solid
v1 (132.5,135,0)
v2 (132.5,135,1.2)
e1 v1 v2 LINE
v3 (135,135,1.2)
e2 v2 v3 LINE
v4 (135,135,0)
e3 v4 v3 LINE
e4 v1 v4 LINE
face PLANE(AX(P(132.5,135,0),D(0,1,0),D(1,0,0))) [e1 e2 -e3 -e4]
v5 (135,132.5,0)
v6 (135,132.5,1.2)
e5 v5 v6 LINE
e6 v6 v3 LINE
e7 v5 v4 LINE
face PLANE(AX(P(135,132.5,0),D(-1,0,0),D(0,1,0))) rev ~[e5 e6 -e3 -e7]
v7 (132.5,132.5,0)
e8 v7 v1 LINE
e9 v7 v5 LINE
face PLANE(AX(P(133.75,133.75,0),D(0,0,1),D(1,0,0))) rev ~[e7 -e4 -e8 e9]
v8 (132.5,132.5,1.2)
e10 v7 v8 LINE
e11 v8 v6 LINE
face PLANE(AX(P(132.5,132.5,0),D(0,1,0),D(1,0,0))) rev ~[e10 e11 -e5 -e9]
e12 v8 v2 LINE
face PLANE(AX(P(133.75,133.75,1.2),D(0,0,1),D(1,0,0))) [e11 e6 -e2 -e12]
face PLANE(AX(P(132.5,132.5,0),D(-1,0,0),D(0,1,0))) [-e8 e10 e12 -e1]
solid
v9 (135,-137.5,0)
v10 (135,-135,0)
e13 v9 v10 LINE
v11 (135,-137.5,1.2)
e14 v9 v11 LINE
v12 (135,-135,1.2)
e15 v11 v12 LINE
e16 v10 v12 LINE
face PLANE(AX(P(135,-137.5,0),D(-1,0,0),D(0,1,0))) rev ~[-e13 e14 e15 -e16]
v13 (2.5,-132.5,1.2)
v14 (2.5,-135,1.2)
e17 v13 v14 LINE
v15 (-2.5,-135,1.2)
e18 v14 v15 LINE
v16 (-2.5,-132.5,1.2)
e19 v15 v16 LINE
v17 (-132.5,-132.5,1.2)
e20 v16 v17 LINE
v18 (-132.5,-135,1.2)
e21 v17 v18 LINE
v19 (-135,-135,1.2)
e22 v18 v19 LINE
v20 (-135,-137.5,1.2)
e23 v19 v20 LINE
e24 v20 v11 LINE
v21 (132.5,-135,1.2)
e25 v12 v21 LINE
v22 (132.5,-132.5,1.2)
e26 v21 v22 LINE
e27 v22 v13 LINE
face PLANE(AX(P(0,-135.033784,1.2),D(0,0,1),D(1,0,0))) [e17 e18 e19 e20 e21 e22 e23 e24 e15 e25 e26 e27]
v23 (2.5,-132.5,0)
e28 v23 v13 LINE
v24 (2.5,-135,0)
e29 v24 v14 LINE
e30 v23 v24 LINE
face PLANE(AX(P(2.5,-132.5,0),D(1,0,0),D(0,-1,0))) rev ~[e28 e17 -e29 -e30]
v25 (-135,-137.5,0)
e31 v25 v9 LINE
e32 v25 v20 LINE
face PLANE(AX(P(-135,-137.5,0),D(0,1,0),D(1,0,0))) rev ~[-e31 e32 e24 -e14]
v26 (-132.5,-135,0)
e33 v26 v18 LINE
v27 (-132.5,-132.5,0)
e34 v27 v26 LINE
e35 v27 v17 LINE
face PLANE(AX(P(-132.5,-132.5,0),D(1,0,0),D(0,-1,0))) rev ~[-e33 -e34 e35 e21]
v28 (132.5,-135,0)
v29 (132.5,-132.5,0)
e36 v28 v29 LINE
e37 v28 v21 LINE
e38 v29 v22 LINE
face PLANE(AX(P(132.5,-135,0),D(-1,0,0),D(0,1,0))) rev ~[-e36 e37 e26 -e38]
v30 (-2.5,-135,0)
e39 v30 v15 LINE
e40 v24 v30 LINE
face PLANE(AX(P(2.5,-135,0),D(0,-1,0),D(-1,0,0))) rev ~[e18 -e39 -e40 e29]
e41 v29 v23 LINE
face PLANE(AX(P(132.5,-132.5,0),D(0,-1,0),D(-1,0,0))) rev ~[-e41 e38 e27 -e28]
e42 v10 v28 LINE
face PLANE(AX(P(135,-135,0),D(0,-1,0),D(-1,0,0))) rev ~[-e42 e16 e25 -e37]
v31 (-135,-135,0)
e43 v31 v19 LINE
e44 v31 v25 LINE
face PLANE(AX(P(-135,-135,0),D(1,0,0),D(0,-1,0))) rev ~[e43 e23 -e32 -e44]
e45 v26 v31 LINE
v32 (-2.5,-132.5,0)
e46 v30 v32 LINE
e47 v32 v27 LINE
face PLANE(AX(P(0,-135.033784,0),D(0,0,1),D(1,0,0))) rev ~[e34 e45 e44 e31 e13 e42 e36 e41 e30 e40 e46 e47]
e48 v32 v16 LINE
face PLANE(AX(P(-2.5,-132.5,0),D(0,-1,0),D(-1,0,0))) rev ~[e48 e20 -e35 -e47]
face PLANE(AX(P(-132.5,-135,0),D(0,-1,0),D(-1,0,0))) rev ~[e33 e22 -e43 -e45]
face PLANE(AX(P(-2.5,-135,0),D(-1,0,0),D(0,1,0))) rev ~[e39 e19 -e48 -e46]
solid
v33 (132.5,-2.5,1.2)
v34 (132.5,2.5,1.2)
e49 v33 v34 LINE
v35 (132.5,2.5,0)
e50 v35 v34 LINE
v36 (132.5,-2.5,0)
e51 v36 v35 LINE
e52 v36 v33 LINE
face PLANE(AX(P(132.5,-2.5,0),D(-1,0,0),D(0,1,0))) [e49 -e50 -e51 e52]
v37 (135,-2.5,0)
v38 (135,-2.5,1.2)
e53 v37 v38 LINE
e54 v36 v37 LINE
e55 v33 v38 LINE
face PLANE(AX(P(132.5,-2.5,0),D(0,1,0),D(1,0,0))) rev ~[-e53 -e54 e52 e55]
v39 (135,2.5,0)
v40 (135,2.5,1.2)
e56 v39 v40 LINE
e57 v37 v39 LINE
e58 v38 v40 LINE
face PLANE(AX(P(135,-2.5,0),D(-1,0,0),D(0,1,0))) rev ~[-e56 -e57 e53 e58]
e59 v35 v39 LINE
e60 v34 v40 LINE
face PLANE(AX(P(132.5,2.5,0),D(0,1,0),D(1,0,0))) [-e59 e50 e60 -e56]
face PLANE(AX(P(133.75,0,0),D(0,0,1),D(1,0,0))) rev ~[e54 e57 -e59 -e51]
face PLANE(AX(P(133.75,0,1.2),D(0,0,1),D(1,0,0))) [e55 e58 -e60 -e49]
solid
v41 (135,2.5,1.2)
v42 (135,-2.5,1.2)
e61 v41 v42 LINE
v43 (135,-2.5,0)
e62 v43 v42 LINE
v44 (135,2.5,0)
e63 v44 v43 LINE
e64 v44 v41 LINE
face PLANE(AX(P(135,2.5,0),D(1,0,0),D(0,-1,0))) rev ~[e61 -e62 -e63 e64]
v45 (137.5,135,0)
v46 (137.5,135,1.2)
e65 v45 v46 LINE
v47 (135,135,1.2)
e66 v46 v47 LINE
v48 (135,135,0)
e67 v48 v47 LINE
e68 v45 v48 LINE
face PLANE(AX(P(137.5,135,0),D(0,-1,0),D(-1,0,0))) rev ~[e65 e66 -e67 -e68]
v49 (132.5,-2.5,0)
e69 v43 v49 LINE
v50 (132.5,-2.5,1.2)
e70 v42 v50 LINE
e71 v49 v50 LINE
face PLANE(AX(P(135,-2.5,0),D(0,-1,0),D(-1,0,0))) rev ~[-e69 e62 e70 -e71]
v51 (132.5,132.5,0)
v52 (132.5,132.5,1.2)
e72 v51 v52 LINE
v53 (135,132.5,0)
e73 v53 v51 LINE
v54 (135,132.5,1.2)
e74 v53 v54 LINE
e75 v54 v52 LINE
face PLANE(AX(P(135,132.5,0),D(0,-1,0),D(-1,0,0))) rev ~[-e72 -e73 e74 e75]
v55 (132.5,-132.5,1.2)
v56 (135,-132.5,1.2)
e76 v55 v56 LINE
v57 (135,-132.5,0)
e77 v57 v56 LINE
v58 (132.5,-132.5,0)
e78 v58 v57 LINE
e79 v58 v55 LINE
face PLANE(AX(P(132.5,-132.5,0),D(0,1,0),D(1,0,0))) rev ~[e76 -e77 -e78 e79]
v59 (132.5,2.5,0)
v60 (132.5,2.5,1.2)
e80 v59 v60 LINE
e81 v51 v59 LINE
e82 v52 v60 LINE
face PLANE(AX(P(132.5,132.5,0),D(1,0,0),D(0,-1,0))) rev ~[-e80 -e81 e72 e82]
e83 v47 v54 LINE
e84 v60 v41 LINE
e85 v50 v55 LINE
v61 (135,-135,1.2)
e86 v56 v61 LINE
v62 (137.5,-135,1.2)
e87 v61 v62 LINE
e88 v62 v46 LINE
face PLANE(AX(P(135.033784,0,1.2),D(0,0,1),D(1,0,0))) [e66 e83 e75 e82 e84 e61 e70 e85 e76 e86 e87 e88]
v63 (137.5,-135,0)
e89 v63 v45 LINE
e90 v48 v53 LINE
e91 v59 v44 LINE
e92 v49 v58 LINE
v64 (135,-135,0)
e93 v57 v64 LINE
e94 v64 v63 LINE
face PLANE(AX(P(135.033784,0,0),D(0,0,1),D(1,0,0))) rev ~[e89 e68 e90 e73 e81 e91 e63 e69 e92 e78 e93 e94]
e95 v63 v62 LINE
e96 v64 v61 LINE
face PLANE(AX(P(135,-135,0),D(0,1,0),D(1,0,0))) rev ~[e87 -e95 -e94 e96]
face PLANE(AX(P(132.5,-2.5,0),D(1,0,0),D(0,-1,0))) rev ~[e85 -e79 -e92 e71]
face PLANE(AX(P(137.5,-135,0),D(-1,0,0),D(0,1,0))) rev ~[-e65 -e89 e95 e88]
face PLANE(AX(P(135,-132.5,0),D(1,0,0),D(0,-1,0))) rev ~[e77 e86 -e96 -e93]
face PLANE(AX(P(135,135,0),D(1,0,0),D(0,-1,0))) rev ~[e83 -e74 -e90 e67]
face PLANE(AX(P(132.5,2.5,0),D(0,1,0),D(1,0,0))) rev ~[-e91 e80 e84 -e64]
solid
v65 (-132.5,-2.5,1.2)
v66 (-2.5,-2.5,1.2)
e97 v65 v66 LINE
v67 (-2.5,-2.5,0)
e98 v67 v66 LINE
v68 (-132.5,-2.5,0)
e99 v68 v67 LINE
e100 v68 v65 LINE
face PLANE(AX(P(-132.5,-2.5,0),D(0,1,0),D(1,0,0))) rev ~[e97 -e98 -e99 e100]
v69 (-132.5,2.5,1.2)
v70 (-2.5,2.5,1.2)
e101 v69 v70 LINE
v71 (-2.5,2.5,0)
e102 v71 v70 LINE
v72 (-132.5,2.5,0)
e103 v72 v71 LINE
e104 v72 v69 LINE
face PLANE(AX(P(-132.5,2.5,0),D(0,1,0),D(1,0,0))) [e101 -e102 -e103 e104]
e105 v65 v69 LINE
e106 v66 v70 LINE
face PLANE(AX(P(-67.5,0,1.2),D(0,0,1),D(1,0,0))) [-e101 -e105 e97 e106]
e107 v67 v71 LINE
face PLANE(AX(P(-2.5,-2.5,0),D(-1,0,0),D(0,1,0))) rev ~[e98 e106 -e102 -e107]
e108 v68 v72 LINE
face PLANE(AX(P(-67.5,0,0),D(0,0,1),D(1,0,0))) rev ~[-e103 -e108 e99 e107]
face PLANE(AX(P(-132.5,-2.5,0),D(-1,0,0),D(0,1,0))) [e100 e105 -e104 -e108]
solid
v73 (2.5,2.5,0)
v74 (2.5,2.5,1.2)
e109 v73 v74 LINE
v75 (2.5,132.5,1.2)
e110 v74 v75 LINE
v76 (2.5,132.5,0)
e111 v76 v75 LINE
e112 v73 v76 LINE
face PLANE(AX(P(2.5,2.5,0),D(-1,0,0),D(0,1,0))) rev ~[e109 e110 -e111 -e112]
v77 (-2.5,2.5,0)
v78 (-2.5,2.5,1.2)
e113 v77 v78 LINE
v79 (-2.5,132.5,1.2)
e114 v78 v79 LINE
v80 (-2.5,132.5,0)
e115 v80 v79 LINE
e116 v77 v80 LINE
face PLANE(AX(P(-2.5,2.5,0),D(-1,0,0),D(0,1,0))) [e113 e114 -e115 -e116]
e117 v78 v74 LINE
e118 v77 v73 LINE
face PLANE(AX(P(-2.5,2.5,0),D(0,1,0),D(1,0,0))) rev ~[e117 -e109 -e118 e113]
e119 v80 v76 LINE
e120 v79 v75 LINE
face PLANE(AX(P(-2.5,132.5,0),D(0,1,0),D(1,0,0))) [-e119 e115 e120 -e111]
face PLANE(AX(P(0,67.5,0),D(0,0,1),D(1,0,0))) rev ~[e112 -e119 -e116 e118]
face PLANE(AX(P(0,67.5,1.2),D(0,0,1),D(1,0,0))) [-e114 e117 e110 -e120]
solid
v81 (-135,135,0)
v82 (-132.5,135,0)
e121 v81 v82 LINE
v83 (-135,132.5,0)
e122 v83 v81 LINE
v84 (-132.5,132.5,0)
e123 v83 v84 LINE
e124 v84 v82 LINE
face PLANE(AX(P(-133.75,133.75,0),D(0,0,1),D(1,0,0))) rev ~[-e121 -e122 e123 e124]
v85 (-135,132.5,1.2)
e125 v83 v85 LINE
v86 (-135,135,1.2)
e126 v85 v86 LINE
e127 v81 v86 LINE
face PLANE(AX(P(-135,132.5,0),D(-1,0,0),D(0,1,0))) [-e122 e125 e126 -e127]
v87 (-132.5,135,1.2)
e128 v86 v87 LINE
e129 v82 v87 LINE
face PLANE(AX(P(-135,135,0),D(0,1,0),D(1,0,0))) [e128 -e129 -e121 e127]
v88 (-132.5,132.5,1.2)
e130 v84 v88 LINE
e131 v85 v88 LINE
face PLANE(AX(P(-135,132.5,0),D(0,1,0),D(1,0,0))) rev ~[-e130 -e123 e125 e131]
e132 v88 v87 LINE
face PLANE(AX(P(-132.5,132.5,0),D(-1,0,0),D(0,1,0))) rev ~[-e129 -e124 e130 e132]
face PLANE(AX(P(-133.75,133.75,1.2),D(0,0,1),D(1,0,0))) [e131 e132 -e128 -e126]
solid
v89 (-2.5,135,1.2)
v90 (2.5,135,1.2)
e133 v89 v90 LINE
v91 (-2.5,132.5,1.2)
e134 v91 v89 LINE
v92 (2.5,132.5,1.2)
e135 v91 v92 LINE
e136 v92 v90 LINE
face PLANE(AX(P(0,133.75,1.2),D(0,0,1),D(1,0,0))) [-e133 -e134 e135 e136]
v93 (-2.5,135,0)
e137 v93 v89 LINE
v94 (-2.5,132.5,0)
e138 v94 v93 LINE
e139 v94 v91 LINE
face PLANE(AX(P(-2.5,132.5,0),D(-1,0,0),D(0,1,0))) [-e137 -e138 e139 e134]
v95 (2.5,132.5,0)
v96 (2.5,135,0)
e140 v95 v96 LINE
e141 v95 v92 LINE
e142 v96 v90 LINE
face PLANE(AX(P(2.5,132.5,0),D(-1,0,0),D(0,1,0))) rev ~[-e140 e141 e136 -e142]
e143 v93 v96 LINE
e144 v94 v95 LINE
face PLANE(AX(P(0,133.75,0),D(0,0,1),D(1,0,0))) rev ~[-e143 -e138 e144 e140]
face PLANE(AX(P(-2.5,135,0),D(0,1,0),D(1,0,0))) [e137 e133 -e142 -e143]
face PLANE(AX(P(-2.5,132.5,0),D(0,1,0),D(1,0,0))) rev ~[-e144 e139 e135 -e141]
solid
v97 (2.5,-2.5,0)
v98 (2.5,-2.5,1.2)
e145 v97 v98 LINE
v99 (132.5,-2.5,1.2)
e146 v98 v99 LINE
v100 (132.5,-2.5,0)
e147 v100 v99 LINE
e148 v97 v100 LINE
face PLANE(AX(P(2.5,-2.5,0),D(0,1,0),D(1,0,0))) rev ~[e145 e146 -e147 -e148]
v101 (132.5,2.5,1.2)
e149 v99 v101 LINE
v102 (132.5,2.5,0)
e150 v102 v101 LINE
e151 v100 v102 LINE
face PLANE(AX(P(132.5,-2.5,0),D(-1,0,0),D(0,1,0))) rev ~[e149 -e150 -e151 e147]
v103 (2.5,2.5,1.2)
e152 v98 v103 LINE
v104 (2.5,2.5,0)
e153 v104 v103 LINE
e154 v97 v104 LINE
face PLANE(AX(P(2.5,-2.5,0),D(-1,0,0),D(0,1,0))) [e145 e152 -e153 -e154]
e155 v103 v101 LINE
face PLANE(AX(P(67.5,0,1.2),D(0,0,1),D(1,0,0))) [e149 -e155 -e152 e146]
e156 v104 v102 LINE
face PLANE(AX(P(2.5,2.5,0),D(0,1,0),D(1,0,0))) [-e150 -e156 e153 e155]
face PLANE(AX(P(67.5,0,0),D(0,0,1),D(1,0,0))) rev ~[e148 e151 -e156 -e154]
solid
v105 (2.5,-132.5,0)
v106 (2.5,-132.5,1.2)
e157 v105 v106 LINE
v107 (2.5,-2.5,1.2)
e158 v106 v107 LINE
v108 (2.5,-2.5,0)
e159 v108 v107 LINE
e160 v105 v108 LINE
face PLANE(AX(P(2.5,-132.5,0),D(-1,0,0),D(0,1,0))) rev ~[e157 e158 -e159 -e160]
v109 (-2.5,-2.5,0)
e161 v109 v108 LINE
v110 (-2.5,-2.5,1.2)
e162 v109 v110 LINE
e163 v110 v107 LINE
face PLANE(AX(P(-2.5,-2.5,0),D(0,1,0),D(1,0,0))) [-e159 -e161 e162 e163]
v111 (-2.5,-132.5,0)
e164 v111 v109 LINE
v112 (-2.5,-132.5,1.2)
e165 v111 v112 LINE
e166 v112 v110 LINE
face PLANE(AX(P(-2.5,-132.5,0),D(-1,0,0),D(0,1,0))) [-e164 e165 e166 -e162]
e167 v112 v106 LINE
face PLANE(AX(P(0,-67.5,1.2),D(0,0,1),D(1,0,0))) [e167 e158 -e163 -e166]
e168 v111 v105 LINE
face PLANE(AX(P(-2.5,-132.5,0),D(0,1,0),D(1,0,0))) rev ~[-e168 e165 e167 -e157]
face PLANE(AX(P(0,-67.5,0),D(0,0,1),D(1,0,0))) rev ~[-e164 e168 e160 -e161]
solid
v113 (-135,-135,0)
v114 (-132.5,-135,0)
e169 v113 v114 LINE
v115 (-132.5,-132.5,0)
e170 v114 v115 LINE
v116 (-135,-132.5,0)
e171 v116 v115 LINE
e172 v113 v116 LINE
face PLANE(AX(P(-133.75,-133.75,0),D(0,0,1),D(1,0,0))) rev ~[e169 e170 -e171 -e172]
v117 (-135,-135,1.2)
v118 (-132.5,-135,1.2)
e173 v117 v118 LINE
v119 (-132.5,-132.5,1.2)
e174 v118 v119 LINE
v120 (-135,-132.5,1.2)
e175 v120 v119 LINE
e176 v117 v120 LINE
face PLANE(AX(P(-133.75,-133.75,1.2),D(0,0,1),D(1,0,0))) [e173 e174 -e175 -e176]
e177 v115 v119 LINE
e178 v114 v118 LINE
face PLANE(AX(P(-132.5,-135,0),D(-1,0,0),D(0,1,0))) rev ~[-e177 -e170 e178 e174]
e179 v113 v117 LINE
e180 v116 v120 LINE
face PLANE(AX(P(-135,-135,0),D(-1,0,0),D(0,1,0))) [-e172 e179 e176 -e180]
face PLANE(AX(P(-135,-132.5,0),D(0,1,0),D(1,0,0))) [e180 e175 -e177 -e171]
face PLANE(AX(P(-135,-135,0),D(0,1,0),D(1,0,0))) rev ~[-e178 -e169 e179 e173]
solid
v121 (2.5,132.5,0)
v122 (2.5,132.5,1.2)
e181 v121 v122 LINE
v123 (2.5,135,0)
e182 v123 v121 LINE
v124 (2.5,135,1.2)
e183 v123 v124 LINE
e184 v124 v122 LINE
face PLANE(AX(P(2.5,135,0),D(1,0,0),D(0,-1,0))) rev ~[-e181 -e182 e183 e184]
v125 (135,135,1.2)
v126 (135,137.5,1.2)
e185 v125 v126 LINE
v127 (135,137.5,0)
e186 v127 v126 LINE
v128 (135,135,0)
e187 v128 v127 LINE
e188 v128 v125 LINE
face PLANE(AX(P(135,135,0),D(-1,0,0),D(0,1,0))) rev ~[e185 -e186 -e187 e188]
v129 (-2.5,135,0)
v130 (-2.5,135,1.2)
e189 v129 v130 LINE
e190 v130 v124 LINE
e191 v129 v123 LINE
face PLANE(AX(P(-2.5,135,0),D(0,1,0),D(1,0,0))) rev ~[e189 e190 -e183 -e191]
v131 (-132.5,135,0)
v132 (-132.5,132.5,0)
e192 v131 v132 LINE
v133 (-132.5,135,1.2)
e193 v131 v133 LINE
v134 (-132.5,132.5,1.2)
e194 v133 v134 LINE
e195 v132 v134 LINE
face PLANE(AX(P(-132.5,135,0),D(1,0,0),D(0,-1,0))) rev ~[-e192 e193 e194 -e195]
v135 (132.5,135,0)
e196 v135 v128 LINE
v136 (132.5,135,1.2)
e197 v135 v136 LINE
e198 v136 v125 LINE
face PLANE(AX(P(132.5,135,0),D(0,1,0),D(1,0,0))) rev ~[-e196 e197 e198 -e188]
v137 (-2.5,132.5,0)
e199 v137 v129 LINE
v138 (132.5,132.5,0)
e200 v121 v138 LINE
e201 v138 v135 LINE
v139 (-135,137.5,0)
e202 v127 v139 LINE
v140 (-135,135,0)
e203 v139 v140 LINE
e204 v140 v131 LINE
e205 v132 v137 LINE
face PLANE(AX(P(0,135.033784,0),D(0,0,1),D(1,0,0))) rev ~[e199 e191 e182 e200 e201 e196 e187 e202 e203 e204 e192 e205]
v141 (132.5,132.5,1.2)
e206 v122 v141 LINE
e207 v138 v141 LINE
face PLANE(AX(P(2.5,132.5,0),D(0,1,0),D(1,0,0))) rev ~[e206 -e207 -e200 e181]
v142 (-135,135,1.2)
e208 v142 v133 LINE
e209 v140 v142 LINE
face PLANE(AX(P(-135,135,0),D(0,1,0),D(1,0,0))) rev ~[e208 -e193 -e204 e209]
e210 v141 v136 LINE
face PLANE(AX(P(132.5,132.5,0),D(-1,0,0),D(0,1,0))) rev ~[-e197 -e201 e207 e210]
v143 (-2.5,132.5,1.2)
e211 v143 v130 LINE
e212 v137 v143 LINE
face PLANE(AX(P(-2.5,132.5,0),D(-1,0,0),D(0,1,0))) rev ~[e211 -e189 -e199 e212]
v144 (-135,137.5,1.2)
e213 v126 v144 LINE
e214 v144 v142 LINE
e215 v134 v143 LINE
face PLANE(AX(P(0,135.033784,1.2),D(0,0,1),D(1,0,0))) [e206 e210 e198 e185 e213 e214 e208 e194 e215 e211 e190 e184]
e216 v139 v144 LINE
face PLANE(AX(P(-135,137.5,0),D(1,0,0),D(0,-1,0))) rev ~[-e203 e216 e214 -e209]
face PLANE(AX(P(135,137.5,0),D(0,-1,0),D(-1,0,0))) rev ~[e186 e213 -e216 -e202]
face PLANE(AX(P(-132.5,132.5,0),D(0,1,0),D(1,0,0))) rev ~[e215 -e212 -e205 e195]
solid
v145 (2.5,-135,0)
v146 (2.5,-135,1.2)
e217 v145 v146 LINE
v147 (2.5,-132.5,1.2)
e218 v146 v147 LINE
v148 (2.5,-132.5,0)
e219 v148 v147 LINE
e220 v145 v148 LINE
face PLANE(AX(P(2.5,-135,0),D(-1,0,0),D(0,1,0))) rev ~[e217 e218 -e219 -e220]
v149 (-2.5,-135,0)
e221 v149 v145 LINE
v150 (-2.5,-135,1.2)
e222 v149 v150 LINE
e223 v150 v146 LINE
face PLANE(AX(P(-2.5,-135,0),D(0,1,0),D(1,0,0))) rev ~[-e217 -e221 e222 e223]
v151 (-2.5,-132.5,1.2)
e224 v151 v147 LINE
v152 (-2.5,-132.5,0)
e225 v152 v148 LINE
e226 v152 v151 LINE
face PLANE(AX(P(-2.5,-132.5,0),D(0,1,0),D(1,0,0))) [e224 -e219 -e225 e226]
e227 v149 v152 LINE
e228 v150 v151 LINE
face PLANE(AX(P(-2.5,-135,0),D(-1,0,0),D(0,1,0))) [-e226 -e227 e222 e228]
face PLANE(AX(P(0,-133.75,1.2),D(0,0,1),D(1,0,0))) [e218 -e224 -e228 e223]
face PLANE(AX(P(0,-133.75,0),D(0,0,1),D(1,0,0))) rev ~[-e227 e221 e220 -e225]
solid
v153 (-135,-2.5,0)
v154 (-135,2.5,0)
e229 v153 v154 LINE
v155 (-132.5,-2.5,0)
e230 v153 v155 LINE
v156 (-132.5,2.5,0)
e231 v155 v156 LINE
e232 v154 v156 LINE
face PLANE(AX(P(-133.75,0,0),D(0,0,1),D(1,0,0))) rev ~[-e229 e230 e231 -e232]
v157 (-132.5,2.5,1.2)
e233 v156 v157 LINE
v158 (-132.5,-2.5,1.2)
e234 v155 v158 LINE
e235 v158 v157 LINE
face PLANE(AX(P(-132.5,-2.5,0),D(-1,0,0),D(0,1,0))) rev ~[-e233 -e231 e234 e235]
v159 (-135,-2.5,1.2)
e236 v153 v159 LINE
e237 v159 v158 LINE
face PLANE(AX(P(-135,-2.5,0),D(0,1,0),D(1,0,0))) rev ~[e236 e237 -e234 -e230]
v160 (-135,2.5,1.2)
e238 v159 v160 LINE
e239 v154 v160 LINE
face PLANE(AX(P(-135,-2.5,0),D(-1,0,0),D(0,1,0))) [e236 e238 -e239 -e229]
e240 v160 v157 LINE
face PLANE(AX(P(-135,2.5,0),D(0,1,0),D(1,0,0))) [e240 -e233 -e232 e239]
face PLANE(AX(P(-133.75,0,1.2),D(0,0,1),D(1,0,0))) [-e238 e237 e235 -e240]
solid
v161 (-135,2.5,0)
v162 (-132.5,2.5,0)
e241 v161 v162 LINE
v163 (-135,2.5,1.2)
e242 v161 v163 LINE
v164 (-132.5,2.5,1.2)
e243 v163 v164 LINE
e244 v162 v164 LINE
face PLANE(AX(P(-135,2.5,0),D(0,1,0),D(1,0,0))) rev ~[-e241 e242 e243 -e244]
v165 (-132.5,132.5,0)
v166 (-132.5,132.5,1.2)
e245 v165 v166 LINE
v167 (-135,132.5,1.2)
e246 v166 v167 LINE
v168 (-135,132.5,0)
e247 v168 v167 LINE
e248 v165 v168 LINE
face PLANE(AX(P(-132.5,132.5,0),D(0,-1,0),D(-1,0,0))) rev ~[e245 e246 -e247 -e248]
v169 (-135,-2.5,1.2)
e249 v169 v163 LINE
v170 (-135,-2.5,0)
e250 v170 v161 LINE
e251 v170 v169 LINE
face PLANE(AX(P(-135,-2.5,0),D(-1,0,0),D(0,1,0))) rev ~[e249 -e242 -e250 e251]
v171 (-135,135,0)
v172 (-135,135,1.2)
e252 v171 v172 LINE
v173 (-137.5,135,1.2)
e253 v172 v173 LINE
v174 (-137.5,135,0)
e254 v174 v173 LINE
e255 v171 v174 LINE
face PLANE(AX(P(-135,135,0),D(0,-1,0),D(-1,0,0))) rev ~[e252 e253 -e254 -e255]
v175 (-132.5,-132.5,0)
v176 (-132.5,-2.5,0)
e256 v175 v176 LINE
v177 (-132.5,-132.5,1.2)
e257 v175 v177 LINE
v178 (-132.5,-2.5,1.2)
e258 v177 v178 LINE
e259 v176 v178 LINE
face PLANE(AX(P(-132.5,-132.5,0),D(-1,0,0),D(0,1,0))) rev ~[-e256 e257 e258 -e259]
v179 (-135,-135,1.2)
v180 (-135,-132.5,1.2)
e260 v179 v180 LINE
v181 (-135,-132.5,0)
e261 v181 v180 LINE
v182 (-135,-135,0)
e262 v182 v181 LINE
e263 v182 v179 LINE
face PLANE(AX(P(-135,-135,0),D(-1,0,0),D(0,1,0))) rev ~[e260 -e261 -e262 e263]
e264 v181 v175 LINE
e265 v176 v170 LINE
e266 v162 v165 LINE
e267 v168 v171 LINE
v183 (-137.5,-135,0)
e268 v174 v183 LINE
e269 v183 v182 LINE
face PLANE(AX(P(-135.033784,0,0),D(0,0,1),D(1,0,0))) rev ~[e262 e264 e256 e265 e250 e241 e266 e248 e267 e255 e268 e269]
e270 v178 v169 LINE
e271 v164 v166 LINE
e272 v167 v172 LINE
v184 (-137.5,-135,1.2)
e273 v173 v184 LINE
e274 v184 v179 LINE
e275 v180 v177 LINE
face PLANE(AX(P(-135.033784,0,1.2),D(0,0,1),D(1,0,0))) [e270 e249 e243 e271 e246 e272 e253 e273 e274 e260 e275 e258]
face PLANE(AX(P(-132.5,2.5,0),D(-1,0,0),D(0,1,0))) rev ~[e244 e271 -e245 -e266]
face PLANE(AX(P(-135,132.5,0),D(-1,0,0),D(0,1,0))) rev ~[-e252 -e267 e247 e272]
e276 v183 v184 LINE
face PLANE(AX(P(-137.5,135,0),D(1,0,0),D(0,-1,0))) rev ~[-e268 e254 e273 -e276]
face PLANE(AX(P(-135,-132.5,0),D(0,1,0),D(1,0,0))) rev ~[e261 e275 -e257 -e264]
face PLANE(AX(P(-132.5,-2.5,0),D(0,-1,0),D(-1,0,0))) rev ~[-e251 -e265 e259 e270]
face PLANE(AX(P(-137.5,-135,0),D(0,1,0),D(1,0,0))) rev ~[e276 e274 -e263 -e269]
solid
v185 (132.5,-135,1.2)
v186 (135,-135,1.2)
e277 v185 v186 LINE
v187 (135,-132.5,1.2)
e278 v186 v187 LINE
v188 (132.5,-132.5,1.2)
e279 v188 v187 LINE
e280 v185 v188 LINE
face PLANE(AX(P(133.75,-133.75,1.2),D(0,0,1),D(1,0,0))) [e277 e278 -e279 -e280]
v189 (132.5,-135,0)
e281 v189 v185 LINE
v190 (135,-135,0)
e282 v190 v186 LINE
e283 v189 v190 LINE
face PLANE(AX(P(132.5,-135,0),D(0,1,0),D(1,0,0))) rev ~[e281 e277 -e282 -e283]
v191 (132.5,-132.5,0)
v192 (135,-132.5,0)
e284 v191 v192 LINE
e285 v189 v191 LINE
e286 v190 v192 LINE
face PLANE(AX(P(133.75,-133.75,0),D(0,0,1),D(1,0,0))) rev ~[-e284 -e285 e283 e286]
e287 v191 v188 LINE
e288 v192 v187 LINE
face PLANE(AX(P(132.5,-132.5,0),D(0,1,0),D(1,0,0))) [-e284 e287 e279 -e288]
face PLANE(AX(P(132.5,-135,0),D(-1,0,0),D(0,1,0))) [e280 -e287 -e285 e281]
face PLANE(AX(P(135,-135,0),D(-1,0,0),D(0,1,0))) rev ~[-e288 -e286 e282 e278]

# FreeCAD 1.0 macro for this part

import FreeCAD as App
import Part
import Sketcher

V = App.Vector

doc = App.newDocument("Part")
body = doc.addObject("PartDesign::Body", "Body")

sketch1 = body.newObject("Sketcher::SketchObject", "Sketch")
sketch1.AttachmentSupport = (doc.getObject("XY_Plane"), [""])
sketch1.MapMode = "FlatFace"
sketch1.addGeometry([
    Part.LineSegment(V(132.5, 135, 0), V(132.5, 132.5, 0)),
    Part.LineSegment(V(132.5, 132.5, 0), V(135, 132.5, 0)),
    Part.LineSegment(V(135, 132.5, 0), V(135, 135, 0)),
    Part.LineSegment(V(135, 135, 0), V(132.5, 135, 0)),
], False)
sketch1.addConstraint([
    Sketcher.Constraint("Coincident", 0, 2, 1, 1),
    Sketcher.Constraint("Coincident", 1, 2, 2, 1),
    Sketcher.Constraint("Coincident", 2, 2, 3, 1),
    Sketcher.Constraint("Coincident", 3, 2, 0, 1),
    Sketcher.Constraint("Vertical", 0),
    Sketcher.Constraint("Horizontal", 1),
    Sketcher.Constraint("Vertical", 2),
    Sketcher.Constraint("Horizontal", 3),
    Sketcher.Constraint("Equal", 3, 0),
    Sketcher.Constraint("DistanceX", 1, 1, 1, 2, 2.5),
    Sketcher.Constraint("DistanceX", -1, 1, 1, 2, 135.0),
    Sketcher.Constraint("DistanceY", -1, 1, 2, 2, 135.0),
])
pad1 = body.newObject("PartDesign::Pad", "Pad")
pad1.Profile = sketch1
pad1.Length = 1.2
body2 = doc.addObject("PartDesign::Body", "Body001")

sketch2 = body2.newObject("Sketcher::SketchObject", "Sketch001")
sketch2.AttachmentSupport = (doc.getObject("XY_Plane001"), [""])
sketch2.MapMode = "FlatFace"
sketch2.addGeometry([
    Part.LineSegment(V(-135, 135, 0), V(-135, 132.5, 0)),
    Part.LineSegment(V(-135, 132.5, 0), V(-132.5, 132.5, 0)),
    Part.LineSegment(V(-132.5, 132.5, 0), V(-132.5, 135, 0)),
    Part.LineSegment(V(-132.5, 135, 0), V(-135, 135, 0)),
], False)
sketch2.addConstraint([
    Sketcher.Constraint("Coincident", 0, 2, 1, 1),
    Sketcher.Constraint("Coincident", 1, 2, 2, 1),
    Sketcher.Constraint("Coincident", 2, 2, 3, 1),
    Sketcher.Constraint("Coincident", 3, 2, 0, 1),
    Sketcher.Constraint("Vertical", 0),
    Sketcher.Constraint("Horizontal", 1),
    Sketcher.Constraint("Vertical", 2),
    Sketcher.Constraint("Horizontal", 3),
    Sketcher.Constraint("Equal", 3, 0),
    Sketcher.Constraint("DistanceX", 1, 1, 1, 2, 2.5),
    Sketcher.Constraint("DistanceX", 0, 2, -1, 1, 135.0),
    Sketcher.Constraint("DistanceY", -1, 1, 2, 2, 135.0),
])
pad2 = body2.newObject("PartDesign::Pad", "Pad001")
pad2.Profile = sketch2
pad2.Length = 1.2
body3 = doc.addObject("PartDesign::Body", "Body002")

sketch3 = body3.newObject("Sketcher::SketchObject", "Sketch002")
sketch3.AttachmentSupport = (doc.getObject("XY_Plane002"), [""])
sketch3.MapMode = "FlatFace"
sketch3.addGeometry([
    Part.LineSegment(V(-135, -132.5, 0), V(-135, -135, 0)),
    Part.LineSegment(V(-135, -135, 0), V(-132.5, -135, 0)),
    Part.LineSegment(V(-132.5, -135, 0), V(-132.5, -132.5, 0)),
    Part.LineSegment(V(-132.5, -132.5, 0), V(-135, -132.5, 0)),
], False)
sketch3.addConstraint([
    Sketcher.Constraint("Coincident", 0, 2, 1, 1),
    Sketcher.Constraint("Coincident", 1, 2, 2, 1),
    Sketcher.Constraint("Coincident", 2, 2, 3, 1),
    Sketcher.Constraint("Coincident", 3, 2, 0, 1),
    Sketcher.Constraint("Vertical", 0),
    Sketcher.Constraint("Horizontal", 1),
    Sketcher.Constraint("Vertical", 2),
    Sketcher.Constraint("Horizontal", 3),
    Sketcher.Constraint("Equal", 3, 0),
    Sketcher.Constraint("DistanceX", 1, 1, 1, 2, 2.5),
    Sketcher.Constraint("DistanceX", 0, 2, -1, 1, 135.0),
    Sketcher.Constraint("DistanceY", 0, 2, -1, 1, 135.0),
])
pad3 = body3.newObject("PartDesign::Pad", "Pad002")
pad3.Profile = sketch3
pad3.Length = 1.2
body4 = doc.addObject("PartDesign::Body", "Body003")

sketch4 = body4.newObject("Sketcher::SketchObject", "Sketch003")
sketch4.AttachmentSupport = (doc.getObject("XY_Plane003"), [""])
sketch4.MapMode = "FlatFace"
sketch4.addGeometry([
    Part.LineSegment(V(132.5, -132.5, 0), V(132.5, -135, 0)),
    Part.LineSegment(V(132.5, -135, 0), V(135, -135, 0)),
    Part.LineSegment(V(135, -135, 0), V(135, -132.5, 0)),
    Part.LineSegment(V(135, -132.5, 0), V(132.5, -132.5, 0)),
], False)
sketch4.addConstraint([
    Sketcher.Constraint("Coincident", 0, 2, 1, 1),
    Sketcher.Constraint("Coincident", 1, 2, 2, 1),
    Sketcher.Constraint("Coincident", 2, 2, 3, 1),
    Sketcher.Constraint("Coincident", 3, 2, 0, 1),
    Sketcher.Constraint("Vertical", 0),
    Sketcher.Constraint("Horizontal", 1),
    Sketcher.Constraint("Vertical", 2),
    Sketcher.Constraint("Horizontal", 3),
    Sketcher.Constraint("Equal", 3, 0),
    Sketcher.Constraint("DistanceX", 1, 1, 1, 2, 2.5),
    Sketcher.Constraint("DistanceY", 0, 2, -1, 1, 135.0),
    Sketcher.Constraint("DistanceX", -1, 1, 1, 2, 135.0),
])
pad4 = body4.newObject("PartDesign::Pad", "Pad003")
pad4.Profile = sketch4
pad4.Length = 1.2
body5 = doc.addObject("PartDesign::Body", "Body004")

sketch5 = body5.newObject("Sketcher::SketchObject", "Sketch004")
sketch5.AttachmentSupport = (doc.getObject("XY_Plane004"), [""])
sketch5.MapMode = "FlatFace"
sketch5.addGeometry([
    Part.LineSegment(V(-2.5, -132.5, 0), V(-2.5, -135, 0)),
    Part.LineSegment(V(-2.5, -135, 0), V(2.5, -135, 0)),
    Part.LineSegment(V(2.5, -135, 0), V(2.5, -132.5, 0)),
    Part.LineSegment(V(2.5, -132.5, 0), V(-2.5, -132.5, 0)),
], False)
sketch5.addConstraint([
    Sketcher.Constraint("Coincident", 0, 2, 1, 1),
    Sketcher.Constraint("Coincident", 1, 2, 2, 1),
    Sketcher.Constraint("Coincident", 2, 2, 3, 1),
    Sketcher.Constraint("Coincident", 3, 2, 0, 1),
    Sketcher.Constraint("Vertical", 0),
    Sketcher.Constraint("Horizontal", 1),
    Sketcher.Constraint("Vertical", 2),
    Sketcher.Constraint("Horizontal", 3),
    Sketcher.Constraint("DistanceX", 1, 1, 1, 2, 5.0),
    Sketcher.Constraint("DistanceY", 0, 2, 0, 1, 2.5),
    Sketcher.Constraint("DistanceY", 0, 2, -1, 1, 135.0),
    Sketcher.Constraint("DistanceX", 0, 2, -1, 1, 2.5),
])
pad5 = body5.newObject("PartDesign::Pad", "Pad004")
pad5.Profile = sketch5
pad5.Length = 1.2
body6 = doc.addObject("PartDesign::Body", "Body005")

sketch6 = body6.newObject("Sketcher::SketchObject", "Sketch005")
sketch6.AttachmentSupport = (doc.getObject("XY_Plane005"), [""])
sketch6.MapMode = "FlatFace"
sketch6.addGeometry([
    Part.LineSegment(V(132.5, 2.5, 0), V(132.5, -2.5, 0)),
    Part.LineSegment(V(132.5, -2.5, 0), V(135, -2.5, 0)),
    Part.LineSegment(V(135, -2.5, 0), V(135, 2.5, 0)),
    Part.LineSegment(V(135, 2.5, 0), V(132.5, 2.5, 0)),
], False)
sketch6.addConstraint([
    Sketcher.Constraint("Coincident", 0, 2, 1, 1),
    Sketcher.Constraint("Coincident", 1, 2, 2, 1),
    Sketcher.Constraint("Coincident", 2, 2, 3, 1),
    Sketcher.Constraint("Coincident", 3, 2, 0, 1),
    Sketcher.Constraint("Vertical", 0),
    Sketcher.Constraint("Horizontal", 1),
    Sketcher.Constraint("Vertical", 2),
    Sketcher.Constraint("Horizontal", 3),
    Sketcher.Constraint("DistanceY", 0, 2, 0, 1, 5.0),
    Sketcher.Constraint("DistanceX", 1, 1, 1, 2, 2.5),
    Sketcher.Constraint("DistanceX", -1, 1, 1, 2, 135.0),
    Sketcher.Constraint("DistanceY", 0, 2, -1, 1, 2.5),
])
pad6 = body6.newObject("PartDesign::Pad", "Pad005")
pad6.Profile = sketch6
pad6.Length = 1.2
body7 = doc.addObject("PartDesign::Body", "Body006")

sketch7 = body7.newObject("Sketcher::SketchObject", "Sketch006")
sketch7.AttachmentSupport = (doc.getObject("XY_Plane006"), [""])
sketch7.MapMode = "FlatFace"
sketch7.addGeometry([
    Part.LineSegment(V(-135, 2.5, 0), V(-135, -2.5, 0)),
    Part.LineSegment(V(-135, -2.5, 0), V(-132.5, -2.5, 0)),
    Part.LineSegment(V(-132.5, -2.5, 0), V(-132.5, 2.5, 0)),
    Part.LineSegment(V(-132.5, 2.5, 0), V(-135, 2.5, 0)),
], False)
sketch7.addConstraint([
    Sketcher.Constraint("Coincident", 0, 2, 1, 1),
    Sketcher.Constraint("Coincident", 1, 2, 2, 1),
    Sketcher.Constraint("Coincident", 2, 2, 3, 1),
    Sketcher.Constraint("Coincident", 3, 2, 0, 1),
    Sketcher.Constraint("Vertical", 0),
    Sketcher.Constraint("Horizontal", 1),
    Sketcher.Constraint("Vertical", 2),
    Sketcher.Constraint("Horizontal", 3),
    Sketcher.Constraint("DistanceY", 0, 2, 0, 1, 5.0),
    Sketcher.Constraint("DistanceX", 1, 1, 1, 2, 2.5),
    Sketcher.Constraint("DistanceX", 0, 2, -1, 1, 135.0),
    Sketcher.Constraint("DistanceY", 0, 2, -1, 1, 2.5),
])
pad7 = body7.newObject("PartDesign::Pad", "Pad006")
pad7.Profile = sketch7
pad7.Length = 1.2
body8 = doc.addObject("PartDesign::Body", "Body007")

sketch8 = body8.newObject("Sketcher::SketchObject", "Sketch007")
sketch8.AttachmentSupport = (doc.getObject("XY_Plane007"), [""])
sketch8.MapMode = "FlatFace"
sketch8.addGeometry([
    Part.LineSegment(V(-2.5, 135, 0), V(-2.5, 132.5, 0)),
    Part.LineSegment(V(-2.5, 132.5, 0), V(2.5, 132.5, 0)),
    Part.LineSegment(V(2.5, 132.5, 0), V(2.5, 135, 0)),
    Part.LineSegment(V(2.5, 135, 0), V(-2.5, 135, 0)),
], False)
sketch8.addConstraint([
    Sketcher.Constraint("Coincident", 0, 2, 1, 1),
    Sketcher.Constraint("Coincident", 1, 2, 2, 1),
    Sketcher.Constraint("Coincident", 2, 2, 3, 1),
    Sketcher.Constraint("Coincident", 3, 2, 0, 1),
    Sketcher.Constraint("Vertical", 0),
    Sketcher.Constraint("Horizontal", 1),
    Sketcher.Constraint("Vertical", 2),
    Sketcher.Constraint("Horizontal", 3),
    Sketcher.Constraint("DistanceX", 1, 1, 1, 2, 5.0),
    Sketcher.Constraint("DistanceY", 0, 2, 0, 1, 2.5),
    Sketcher.Constraint("DistanceY", -1, 1, 2, 2, 135.0),
    Sketcher.Constraint("DistanceX", 0, 2, -1, 1, 2.5),
])
pad8 = body8.newObject("PartDesign::Pad", "Pad007")
pad8.Profile = sketch8
pad8.Length = 1.2
body9 = doc.addObject("PartDesign::Body", "Body008")

sketch9 = body9.newObject("Sketcher::SketchObject", "Sketch008")
sketch9.AttachmentSupport = (doc.getObject("XY_Plane008"), [""])
sketch9.MapMode = "FlatFace"
sketch9.addGeometry([
    Part.LineSegment(V(-132.5, -132.5, 0), V(-132.5, -2.5, 0)),
    Part.LineSegment(V(-132.5, -2.5, 0), V(-135, -2.5, 0)),
    Part.LineSegment(V(-135, -2.5, 0), V(-135, 2.5, 0)),
    Part.LineSegment(V(-135, 2.5, 0), V(-132.5, 2.5, 0)),
    Part.LineSegment(V(-132.5, 2.5, 0), V(-132.5, 132.5, 0)),
    Part.LineSegment(V(-132.5, 132.5, 0), V(-135, 132.5, 0)),
    Part.LineSegment(V(-135, 132.5, 0), V(-135, 135, 0)),
    Part.LineSegment(V(-135, 135, 0), V(-137.5, 135, 0)),
    Part.LineSegment(V(-137.5, 135, 0), V(-137.5, -135, 0)),
    Part.LineSegment(V(-137.5, -135, 0), V(-135, -135, 0)),
    Part.LineSegment(V(-135, -135, 0), V(-135, -132.5, 0)),
    Part.LineSegment(V(-135, -132.5, 0), V(-132.5, -132.5, 0)),
], False)
sketch9.addConstraint([
    Sketcher.Constraint("Coincident", 0, 2, 1, 1),
    Sketcher.Constraint("Coincident", 1, 2, 2, 1),
    Sketcher.Constraint("Coincident", 2, 2, 3, 1),
    Sketcher.Constraint("Coincident", 3, 2, 4, 1),
    Sketcher.Constraint("Coincident", 4, 2, 5, 1),
    Sketcher.Constraint("Coincident", 5, 2, 6, 1),
    Sketcher.Constraint("Coincident", 6, 2, 7, 1),
    Sketcher.Constraint("Coincident", 7, 2, 8, 1),
    Sketcher.Constraint("Coincident", 8, 2, 9, 1),
    Sketcher.Constraint("Coincident", 9, 2, 10, 1),
    Sketcher.Constraint("Coincident", 10, 2, 11, 1),
    Sketcher.Constraint("Coincident", 11, 2, 0, 1),
    Sketcher.Constraint("Vertical", 0),
    Sketcher.Constraint("Horizontal", 1),
    Sketcher.Constraint("Vertical", 2),
    Sketcher.Constraint("Horizontal", 3),
    Sketcher.Constraint("Vertical", 4),
    Sketcher.Constraint("Horizontal", 5),
    Sketcher.Constraint("Vertical", 6),
    Sketcher.Constraint("Horizontal", 7),
    Sketcher.Constraint("Vertical", 8),
    Sketcher.Constraint("Horizontal", 9),
    Sketcher.Constraint("Vertical", 10),
    Sketcher.Constraint("Horizontal", 11),
    Sketcher.Constraint("Symmetric", 0, 2, 3, 2, -1),
    Sketcher.Constraint("Symmetric", 6, 2, 9, 2, -1),
    Sketcher.Constraint("Vertical", 2, 2, 5, 2),
    Sketcher.Constraint("Equal", 5, 7),
    Sketcher.Constraint("Equal", 0, 4),
    Sketcher.Constraint("Equal", 11, 6),
    Sketcher.Constraint("DistanceY", 0, 1, 0, 2, 130.0),
    Sketcher.Constraint("DistanceY", 2, 1, 2, 2, 5.0),
    Sketcher.Constraint("DistanceY", 8, 2, 8, 1, 270.0),
    Sketcher.Constraint("DistanceX", 1, 2, -1, 1, 135.0),
])
pad9 = body9.newObject("PartDesign::Pad", "Pad008")
pad9.Profile = sketch9
pad9.Length = 1.2
body10 = doc.addObject("PartDesign::Body", "Body009")

sketch10 = body10.newObject("Sketcher::SketchObject", "Sketch009")
sketch10.AttachmentSupport = (doc.getObject("XY_Plane009"), [""])
sketch10.MapMode = "FlatFace"
sketch10.addGeometry([
    Part.LineSegment(V(-132, 2, 0), V(-132, -2, 0)),
    Part.LineSegment(V(-132, -2, 0), V(-2, -2, 0)),
    Part.LineSegment(V(-2, -2, 0), V(-2, 2, 0)),
    Part.LineSegment(V(-2, 2, 0), V(-132, 2, 0)),
], False)
sketch10.addConstraint([
    Sketcher.Constraint("Coincident", 0, 2, 1, 1),
    Sketcher.Constraint("Coincident", 1, 2, 2, 1),
    Sketcher.Constraint("Coincident", 2, 2, 3, 1),
    Sketcher.Constraint("Coincident", 3, 2, 0, 1),
    Sketcher.Constraint("Vertical", 0),
    Sketcher.Constraint("Horizontal", 1),
    Sketcher.Constraint("Vertical", 2),
    Sketcher.Constraint("Horizontal", 3),
    Sketcher.Constraint("DistanceX", 1, 1, 1, 2, 130.0),
    Sketcher.Constraint("DistanceY", 0, 2, 0, 1, 5.0),
    Sketcher.Constraint("DistanceX", 0, 2, -1, 1, 132.5),
    Sketcher.Constraint("DistanceY", 0, 2, -1, 1, 2.5),
])
pad10 = body10.newObject("PartDesign::Pad", "Pad009")
pad10.Profile = sketch10
pad10.Length = 1.2
body11 = doc.addObject("PartDesign::Body", "Body010")

sketch11 = body11.newObject("Sketcher::SketchObject", "Sketch010")
sketch11.AttachmentSupport = (doc.getObject("XY_Plane010"), [""])
sketch11.MapMode = "FlatFace"
sketch11.addGeometry([
    Part.LineSegment(V(-2, 132, 0), V(-2, 2, 0)),
    Part.LineSegment(V(-2, 2, 0), V(2, 2, 0)),
    Part.LineSegment(V(2, 2, 0), V(2, 132, 0)),
    Part.LineSegment(V(2, 132, 0), V(-2, 132, 0)),
], False)
sketch11.addConstraint([
    Sketcher.Constraint("Coincident", 0, 2, 1, 1),
    Sketcher.Constraint("Coincident", 1, 2, 2, 1),
    Sketcher.Constraint("Coincident", 2, 2, 3, 1),
    Sketcher.Constraint("Coincident", 3, 2, 0, 1),
    Sketcher.Constraint("Vertical", 0),
    Sketcher.Constraint("Horizontal", 1),
    Sketcher.Constraint("Vertical", 2),
    Sketcher.Constraint("Horizontal", 3),
    Sketcher.Constraint("DistanceX", 1, 1, 1, 2, 5.0),
    Sketcher.Constraint("DistanceY", 0, 2, 0, 1, 130.0),
    Sketcher.Constraint("DistanceX", 0, 2, -1, 1, 2.5),
    Sketcher.Constraint("DistanceY", -1, 1, 0, 2, 2.5),
])
pad11 = body11.newObject("PartDesign::Pad", "Pad010")
pad11.Profile = sketch11
pad11.Length = 1.2
body12 = doc.addObject("PartDesign::Body", "Body011")

sketch12 = body12.newObject("Sketcher::SketchObject", "Sketch011")
sketch12.AttachmentSupport = (doc.getObject("XY_Plane011"), [""])
sketch12.MapMode = "FlatFace"
sketch12.addGeometry([
    Part.LineSegment(V(2.5, 132.5, 0), V(132.5, 132.5, 0)),
    Part.LineSegment(V(132.5, 132.5, 0), V(132.5, 135, 0)),
    Part.LineSegment(V(132.5, 135, 0), V(135, 135, 0)),
    Part.LineSegment(V(135, 135, 0), V(135, 137.5, 0)),
    Part.LineSegment(V(135, 137.5, 0), V(-135, 137.5, 0)),
    Part.LineSegment(V(-135, 137.5, 0), V(-135, 135, 0)),
    Part.LineSegment(V(-135, 135, 0), V(-132.5, 135, 0)),
    Part.LineSegment(V(-132.5, 135, 0), V(-132.5, 132.5, 0)),
    Part.LineSegment(V(-132.5, 132.5, 0), V(-2.5, 132.5, 0)),
    Part.LineSegment(V(-2.5, 132.5, 0), V(-2.5, 135, 0)),
    Part.LineSegment(V(-2.5, 135, 0), V(2.5, 135, 0)),
    Part.LineSegment(V(2.5, 135, 0), V(2.5, 132.5, 0)),
], False)
sketch12.addConstraint([
    Sketcher.Constraint("Coincident", 0, 2, 1, 1),
    Sketcher.Constraint("Coincident", 1, 2, 2, 1),
    Sketcher.Constraint("Coincident", 2, 2, 3, 1),
    Sketcher.Constraint("Coincident", 3, 2, 4, 1),
    Sketcher.Constraint("Coincident", 4, 2, 5, 1),
    Sketcher.Constraint("Coincident", 5, 2, 6, 1),
    Sketcher.Constraint("Coincident", 6, 2, 7, 1),
    Sketcher.Constraint("Coincident", 7, 2, 8, 1),
    Sketcher.Constraint("Coincident", 8, 2, 9, 1),
    Sketcher.Constraint("Coincident", 9, 2, 10, 1),
    Sketcher.Constraint("Coincident", 10, 2, 11, 1),
    Sketcher.Constraint("Coincident", 11, 2, 0, 1),
    Sketcher.Constraint("Horizontal", 0),
    Sketcher.Constraint("Vertical", 1),
    Sketcher.Constraint("Horizontal", 2),
    Sketcher.Constraint("Vertical", 3),
    Sketcher.Constraint("Horizontal", 4),
    Sketcher.Constraint("Vertical", 5),
    Sketcher.Constraint("Horizontal", 6),
    Sketcher.Constraint("Vertical", 7),
    Sketcher.Constraint("Horizontal", 8),
    Sketcher.Constraint("Vertical", 9),
    Sketcher.Constraint("Horizontal", 10),
    Sketcher.Constraint("Vertical", 11),
    Sketcher.Constraint("Symmetric", 2, 2, 5, 2, -2),
    Sketcher.Constraint("Symmetric", 0, 2, 7, 2, -2),
    Sketcher.Constraint("Horizontal", 6, 2, 9, 2),
    Sketcher.Constraint("Equal", 0, 8),
    Sketcher.Constraint("Equal", 6, 1),
    Sketcher.Constraint("Equal", 1, 3),
    Sketcher.Constraint("DistanceX", 0, 1, 0, 2, 130.0),
    Sketcher.Constraint("DistanceX", 4, 2, 4, 1, 270.0),
    Sketcher.Constraint("DistanceX", 10, 1, 10, 2, 5.0),
    Sketcher.Constraint("DistanceY", -1, 1, 1, 2, 135.0),
])
pad12 = body12.newObject("PartDesign::Pad", "Pad011")
pad12.Profile = sketch12
pad12.Length = 1.2
body13 = doc.addObject("PartDesign::Body", "Body012")

sketch13 = body13.newObject("Sketcher::SketchObject", "Sketch012")
sketch13.AttachmentSupport = (doc.getObject("XY_Plane012"), [""])
sketch13.MapMode = "FlatFace"
sketch13.addGeometry([
    Part.LineSegment(V(135, 2.5, 0), V(135, -2.5, 0)),
    Part.LineSegment(V(135, -2.5, 0), V(132.5, -2.5, 0)),
    Part.LineSegment(V(132.5, -2.5, 0), V(132.5, -132.5, 0)),
    Part.LineSegment(V(132.5, -132.5, 0), V(135, -132.5, 0)),
    Part.LineSegment(V(135, -132.5, 0), V(135, -135, 0)),
    Part.LineSegment(V(135, -135, 0), V(137.5, -135, 0)),
    Part.LineSegment(V(137.5, -135, 0), V(137.5, 135, 0)),
    Part.LineSegment(V(137.5, 135, 0), V(135, 135, 0)),
    Part.LineSegment(V(135, 135, 0), V(135, 132.5, 0)),
    Part.LineSegment(V(135, 132.5, 0), V(132.5, 132.5, 0)),
    Part.LineSegment(V(132.5, 132.5, 0), V(132.5, 2.5, 0)),
    Part.LineSegment(V(132.5, 2.5, 0), V(135, 2.5, 0)),
], False)
sketch13.addConstraint([
    Sketcher.Constraint("Coincident", 0, 2, 1, 1),
    Sketcher.Constraint("Coincident", 1, 2, 2, 1),
    Sketcher.Constraint("Coincident", 2, 2, 3, 1),
    Sketcher.Constraint("Coincident", 3, 2, 4, 1),
    Sketcher.Constraint("Coincident", 4, 2, 5, 1),
    Sketcher.Constraint("Coincident", 5, 2, 6, 1),
    Sketcher.Constraint("Coincident", 6, 2, 7, 1),
    Sketcher.Constraint("Coincident", 7, 2, 8, 1),
    Sketcher.Constraint("Coincident", 8, 2, 9, 1),
    Sketcher.Constraint("Coincident", 9, 2, 10, 1),
    Sketcher.Constraint("Coincident", 10, 2, 11, 1),
    Sketcher.Constraint("Coincident", 11, 2, 0, 1),
    Sketcher.Constraint("Vertical", 0),
    Sketcher.Constraint("Horizontal", 1),
    Sketcher.Constraint("Vertical", 2),
    Sketcher.Constraint("Horizontal", 3),
    Sketcher.Constraint("Vertical", 4),
    Sketcher.Constraint("Horizontal", 5),
    Sketcher.Constraint("Vertical", 6),
    Sketcher.Constraint("Horizontal", 7),
    Sketcher.Constraint("Vertical", 8),
    Sketcher.Constraint("Horizontal", 9),
    Sketcher.Constraint("Vertical", 10),
    Sketcher.Constraint("Horizontal", 11),
    Sketcher.Constraint("Symmetric", 4, 2, 7, 2, -1),
    Sketcher.Constraint("Symmetric", 2, 2, 9, 2, -1),
    Sketcher.Constraint("Vertical", 0, 2, 3, 2),
    Sketcher.Constraint("Equal", 3, 5),
    Sketcher.Constraint("Equal", 11, 4),
    Sketcher.Constraint("Equal", 2, 10),
    Sketcher.Constraint("DistanceY", 0, 2, 0, 1, 5.0),
    Sketcher.Constraint("DistanceY", 2, 2, 2, 1, 130.0),
    Sketcher.Constraint("DistanceY", 6, 1, 6, 2, 270.0),
    Sketcher.Constraint("DistanceX", -1, 1, 0, 2, 135.0),
])
pad13 = body13.newObject("PartDesign::Pad", "Pad012")
pad13.Profile = sketch13
pad13.Length = 1.2
body14 = doc.addObject("PartDesign::Body", "Body013")

sketch14 = body14.newObject("Sketcher::SketchObject", "Sketch013")
sketch14.AttachmentSupport = (doc.getObject("XY_Plane013"), [""])
sketch14.MapMode = "FlatFace"
sketch14.addGeometry([
    Part.LineSegment(V(132.5, -135, 0), V(132.5, -132.5, 0)),
    Part.LineSegment(V(132.5, -132.5, 0), V(2.5, -132.5, 0)),
    Part.LineSegment(V(2.5, -132.5, 0), V(2.5, -135, 0)),
    Part.LineSegment(V(2.5, -135, 0), V(-2.5, -135, 0)),
    Part.LineSegment(V(-2.5, -135, 0), V(-2.5, -132.5, 0)),
    Part.LineSegment(V(-2.5, -132.5, 0), V(-132.5, -132.5, 0)),
    Part.LineSegment(V(-132.5, -132.5, 0), V(-132.5, -135, 0)),
    Part.LineSegment(V(-132.5, -135, 0), V(-135, -135, 0)),
    Part.LineSegment(V(-135, -135, 0), V(-135, -137.5, 0)),
    Part.LineSegment(V(-135, -137.5, 0), V(135, -137.5, 0)),
    Part.LineSegment(V(135, -137.5, 0), V(135, -135, 0)),
    Part.LineSegment(V(135, -135, 0), V(132.5, -135, 0)),
], False)
sketch14.addConstraint([
    Sketcher.Constraint("Coincident", 0, 2, 1, 1),
    Sketcher.Constraint("Coincident", 1, 2, 2, 1),
    Sketcher.Constraint("Coincident", 2, 2, 3, 1),
    Sketcher.Constraint("Coincident", 3, 2, 4, 1),
    Sketcher.Constraint("Coincident", 4, 2, 5, 1),
    Sketcher.Constraint("Coincident", 5, 2, 6, 1),
    Sketcher.Constraint("Coincident", 6, 2, 7, 1),
    Sketcher.Constraint("Coincident", 7, 2, 8, 1),
    Sketcher.Constraint("Coincident", 8, 2, 9, 1),
    Sketcher.Constraint("Coincident", 9, 2, 10, 1),
    Sketcher.Constraint("Coincident", 10, 2, 11, 1),
    Sketcher.Constraint("Coincident", 11, 2, 0, 1),
    Sketcher.Constraint("Vertical", 0),
    Sketcher.Constraint("Horizontal", 1),
    Sketcher.Constraint("Vertical", 2),
    Sketcher.Constraint("Horizontal", 3),
    Sketcher.Constraint("Vertical", 4),
    Sketcher.Constraint("Horizontal", 5),
    Sketcher.Constraint("Vertical", 6),
    Sketcher.Constraint("Horizontal", 7),
    Sketcher.Constraint("Vertical", 8),
    Sketcher.Constraint("Horizontal", 9),
    Sketcher.Constraint("Vertical", 10),
    Sketcher.Constraint("Horizontal", 11),
    Sketcher.Constraint("Symmetric", 1, 2, 4, 2, -2),
    Sketcher.Constraint("Symmetric", 7, 2, 10, 2, -2),
    Sketcher.Constraint("Horizontal", 3, 2, 6, 2),
    Sketcher.Constraint("Equal", 1, 5),
    Sketcher.Constraint("Equal", 11, 0),
    Sketcher.Constraint("Equal", 6, 8),
    Sketcher.Constraint("DistanceX", 1, 2, 1, 1, 130.0),
    Sketcher.Constraint("DistanceX", 3, 2, 3, 1, 5.0),
    Sketcher.Constraint("DistanceX", 9, 1, 9, 2, 270.0),
    Sketcher.Constraint("DistanceY", 2, 2, -1, 1, 135.0),
])
pad14 = body14.newObject("PartDesign::Pad", "Pad013")
pad14.Profile = sketch14
pad14.Length = 1.2
body15 = doc.addObject("PartDesign::Body", "Body014")

sketch15 = body15.newObject("Sketcher::SketchObject", "Sketch014")
sketch15.AttachmentSupport = (doc.getObject("XY_Plane014"), [""])
sketch15.MapMode = "FlatFace"
sketch15.addGeometry([
    Part.LineSegment(V(2, 2, 0), V(2, -2, 0)),
    Part.LineSegment(V(2, -2, 0), V(132, -2, 0)),
    Part.LineSegment(V(132, -2, 0), V(132, 2, 0)),
    Part.LineSegment(V(132, 2, 0), V(2, 2, 0)),
], False)
sketch15.addConstraint([
    Sketcher.Constraint("Coincident", 0, 2, 1, 1),
    Sketcher.Constraint("Coincident", 1, 2, 2, 1),
    Sketcher.Constraint("Coincident", 2, 2, 3, 1),
    Sketcher.Constraint("Coincident", 3, 2, 0, 1),
    Sketcher.Constraint("Vertical", 0),
    Sketcher.Constraint("Horizontal", 1),
    Sketcher.Constraint("Vertical", 2),
    Sketcher.Constraint("Horizontal", 3),
    Sketcher.Constraint("DistanceX", 1, 1, 1, 2, 130.0),
    Sketcher.Constraint("DistanceY", 0, 2, 0, 1, 5.0),
    Sketcher.Constraint("DistanceX", -1, 1, 0, 2, 2.5),
    Sketcher.Constraint("DistanceY", 0, 2, -1, 1, 2.5),
])
pad15 = body15.newObject("PartDesign::Pad", "Pad014")
pad15.Profile = sketch15
pad15.Length = 1.2
body16 = doc.addObject("PartDesign::Body", "Body015")

sketch16 = body16.newObject("Sketcher::SketchObject", "Sketch015")
sketch16.AttachmentSupport = (doc.getObject("XY_Plane015"), [""])
sketch16.MapMode = "FlatFace"
sketch16.addGeometry([
    Part.LineSegment(V(-2, -2, 0), V(-2, -132, 0)),
    Part.LineSegment(V(-2, -132, 0), V(2, -132, 0)),
    Part.LineSegment(V(2, -132, 0), V(2, -2, 0)),
    Part.LineSegment(V(2, -2, 0), V(-2, -2, 0)),
], False)
sketch16.addConstraint([
    Sketcher.Constraint("Coincident", 0, 2, 1, 1),
    Sketcher.Constraint("Coincident", 1, 2, 2, 1),
    Sketcher.Constraint("Coincident", 2, 2, 3, 1),
    Sketcher.Constraint("Coincident", 3, 2, 0, 1),
    Sketcher.Constraint("Vertical", 0),
    Sketcher.Constraint("Horizontal", 1),
    Sketcher.Constraint("Vertical", 2),
    Sketcher.Constraint("Horizontal", 3),
    Sketcher.Constraint("DistanceX", 1, 1, 1, 2, 5.0),
    Sketcher.Constraint("DistanceY", 0, 2, 0, 1, 130.0),
    Sketcher.Constraint("DistanceX", 0, 2, -1, 1, 2.5),
    Sketcher.Constraint("DistanceY", 0, 2, -1, 1, 132.5),
])
pad16 = body16.newObject("PartDesign::Pad", "Pad015")
pad16.Profile = sketch16
pad16.Length = 1.2

doc.recompute()
